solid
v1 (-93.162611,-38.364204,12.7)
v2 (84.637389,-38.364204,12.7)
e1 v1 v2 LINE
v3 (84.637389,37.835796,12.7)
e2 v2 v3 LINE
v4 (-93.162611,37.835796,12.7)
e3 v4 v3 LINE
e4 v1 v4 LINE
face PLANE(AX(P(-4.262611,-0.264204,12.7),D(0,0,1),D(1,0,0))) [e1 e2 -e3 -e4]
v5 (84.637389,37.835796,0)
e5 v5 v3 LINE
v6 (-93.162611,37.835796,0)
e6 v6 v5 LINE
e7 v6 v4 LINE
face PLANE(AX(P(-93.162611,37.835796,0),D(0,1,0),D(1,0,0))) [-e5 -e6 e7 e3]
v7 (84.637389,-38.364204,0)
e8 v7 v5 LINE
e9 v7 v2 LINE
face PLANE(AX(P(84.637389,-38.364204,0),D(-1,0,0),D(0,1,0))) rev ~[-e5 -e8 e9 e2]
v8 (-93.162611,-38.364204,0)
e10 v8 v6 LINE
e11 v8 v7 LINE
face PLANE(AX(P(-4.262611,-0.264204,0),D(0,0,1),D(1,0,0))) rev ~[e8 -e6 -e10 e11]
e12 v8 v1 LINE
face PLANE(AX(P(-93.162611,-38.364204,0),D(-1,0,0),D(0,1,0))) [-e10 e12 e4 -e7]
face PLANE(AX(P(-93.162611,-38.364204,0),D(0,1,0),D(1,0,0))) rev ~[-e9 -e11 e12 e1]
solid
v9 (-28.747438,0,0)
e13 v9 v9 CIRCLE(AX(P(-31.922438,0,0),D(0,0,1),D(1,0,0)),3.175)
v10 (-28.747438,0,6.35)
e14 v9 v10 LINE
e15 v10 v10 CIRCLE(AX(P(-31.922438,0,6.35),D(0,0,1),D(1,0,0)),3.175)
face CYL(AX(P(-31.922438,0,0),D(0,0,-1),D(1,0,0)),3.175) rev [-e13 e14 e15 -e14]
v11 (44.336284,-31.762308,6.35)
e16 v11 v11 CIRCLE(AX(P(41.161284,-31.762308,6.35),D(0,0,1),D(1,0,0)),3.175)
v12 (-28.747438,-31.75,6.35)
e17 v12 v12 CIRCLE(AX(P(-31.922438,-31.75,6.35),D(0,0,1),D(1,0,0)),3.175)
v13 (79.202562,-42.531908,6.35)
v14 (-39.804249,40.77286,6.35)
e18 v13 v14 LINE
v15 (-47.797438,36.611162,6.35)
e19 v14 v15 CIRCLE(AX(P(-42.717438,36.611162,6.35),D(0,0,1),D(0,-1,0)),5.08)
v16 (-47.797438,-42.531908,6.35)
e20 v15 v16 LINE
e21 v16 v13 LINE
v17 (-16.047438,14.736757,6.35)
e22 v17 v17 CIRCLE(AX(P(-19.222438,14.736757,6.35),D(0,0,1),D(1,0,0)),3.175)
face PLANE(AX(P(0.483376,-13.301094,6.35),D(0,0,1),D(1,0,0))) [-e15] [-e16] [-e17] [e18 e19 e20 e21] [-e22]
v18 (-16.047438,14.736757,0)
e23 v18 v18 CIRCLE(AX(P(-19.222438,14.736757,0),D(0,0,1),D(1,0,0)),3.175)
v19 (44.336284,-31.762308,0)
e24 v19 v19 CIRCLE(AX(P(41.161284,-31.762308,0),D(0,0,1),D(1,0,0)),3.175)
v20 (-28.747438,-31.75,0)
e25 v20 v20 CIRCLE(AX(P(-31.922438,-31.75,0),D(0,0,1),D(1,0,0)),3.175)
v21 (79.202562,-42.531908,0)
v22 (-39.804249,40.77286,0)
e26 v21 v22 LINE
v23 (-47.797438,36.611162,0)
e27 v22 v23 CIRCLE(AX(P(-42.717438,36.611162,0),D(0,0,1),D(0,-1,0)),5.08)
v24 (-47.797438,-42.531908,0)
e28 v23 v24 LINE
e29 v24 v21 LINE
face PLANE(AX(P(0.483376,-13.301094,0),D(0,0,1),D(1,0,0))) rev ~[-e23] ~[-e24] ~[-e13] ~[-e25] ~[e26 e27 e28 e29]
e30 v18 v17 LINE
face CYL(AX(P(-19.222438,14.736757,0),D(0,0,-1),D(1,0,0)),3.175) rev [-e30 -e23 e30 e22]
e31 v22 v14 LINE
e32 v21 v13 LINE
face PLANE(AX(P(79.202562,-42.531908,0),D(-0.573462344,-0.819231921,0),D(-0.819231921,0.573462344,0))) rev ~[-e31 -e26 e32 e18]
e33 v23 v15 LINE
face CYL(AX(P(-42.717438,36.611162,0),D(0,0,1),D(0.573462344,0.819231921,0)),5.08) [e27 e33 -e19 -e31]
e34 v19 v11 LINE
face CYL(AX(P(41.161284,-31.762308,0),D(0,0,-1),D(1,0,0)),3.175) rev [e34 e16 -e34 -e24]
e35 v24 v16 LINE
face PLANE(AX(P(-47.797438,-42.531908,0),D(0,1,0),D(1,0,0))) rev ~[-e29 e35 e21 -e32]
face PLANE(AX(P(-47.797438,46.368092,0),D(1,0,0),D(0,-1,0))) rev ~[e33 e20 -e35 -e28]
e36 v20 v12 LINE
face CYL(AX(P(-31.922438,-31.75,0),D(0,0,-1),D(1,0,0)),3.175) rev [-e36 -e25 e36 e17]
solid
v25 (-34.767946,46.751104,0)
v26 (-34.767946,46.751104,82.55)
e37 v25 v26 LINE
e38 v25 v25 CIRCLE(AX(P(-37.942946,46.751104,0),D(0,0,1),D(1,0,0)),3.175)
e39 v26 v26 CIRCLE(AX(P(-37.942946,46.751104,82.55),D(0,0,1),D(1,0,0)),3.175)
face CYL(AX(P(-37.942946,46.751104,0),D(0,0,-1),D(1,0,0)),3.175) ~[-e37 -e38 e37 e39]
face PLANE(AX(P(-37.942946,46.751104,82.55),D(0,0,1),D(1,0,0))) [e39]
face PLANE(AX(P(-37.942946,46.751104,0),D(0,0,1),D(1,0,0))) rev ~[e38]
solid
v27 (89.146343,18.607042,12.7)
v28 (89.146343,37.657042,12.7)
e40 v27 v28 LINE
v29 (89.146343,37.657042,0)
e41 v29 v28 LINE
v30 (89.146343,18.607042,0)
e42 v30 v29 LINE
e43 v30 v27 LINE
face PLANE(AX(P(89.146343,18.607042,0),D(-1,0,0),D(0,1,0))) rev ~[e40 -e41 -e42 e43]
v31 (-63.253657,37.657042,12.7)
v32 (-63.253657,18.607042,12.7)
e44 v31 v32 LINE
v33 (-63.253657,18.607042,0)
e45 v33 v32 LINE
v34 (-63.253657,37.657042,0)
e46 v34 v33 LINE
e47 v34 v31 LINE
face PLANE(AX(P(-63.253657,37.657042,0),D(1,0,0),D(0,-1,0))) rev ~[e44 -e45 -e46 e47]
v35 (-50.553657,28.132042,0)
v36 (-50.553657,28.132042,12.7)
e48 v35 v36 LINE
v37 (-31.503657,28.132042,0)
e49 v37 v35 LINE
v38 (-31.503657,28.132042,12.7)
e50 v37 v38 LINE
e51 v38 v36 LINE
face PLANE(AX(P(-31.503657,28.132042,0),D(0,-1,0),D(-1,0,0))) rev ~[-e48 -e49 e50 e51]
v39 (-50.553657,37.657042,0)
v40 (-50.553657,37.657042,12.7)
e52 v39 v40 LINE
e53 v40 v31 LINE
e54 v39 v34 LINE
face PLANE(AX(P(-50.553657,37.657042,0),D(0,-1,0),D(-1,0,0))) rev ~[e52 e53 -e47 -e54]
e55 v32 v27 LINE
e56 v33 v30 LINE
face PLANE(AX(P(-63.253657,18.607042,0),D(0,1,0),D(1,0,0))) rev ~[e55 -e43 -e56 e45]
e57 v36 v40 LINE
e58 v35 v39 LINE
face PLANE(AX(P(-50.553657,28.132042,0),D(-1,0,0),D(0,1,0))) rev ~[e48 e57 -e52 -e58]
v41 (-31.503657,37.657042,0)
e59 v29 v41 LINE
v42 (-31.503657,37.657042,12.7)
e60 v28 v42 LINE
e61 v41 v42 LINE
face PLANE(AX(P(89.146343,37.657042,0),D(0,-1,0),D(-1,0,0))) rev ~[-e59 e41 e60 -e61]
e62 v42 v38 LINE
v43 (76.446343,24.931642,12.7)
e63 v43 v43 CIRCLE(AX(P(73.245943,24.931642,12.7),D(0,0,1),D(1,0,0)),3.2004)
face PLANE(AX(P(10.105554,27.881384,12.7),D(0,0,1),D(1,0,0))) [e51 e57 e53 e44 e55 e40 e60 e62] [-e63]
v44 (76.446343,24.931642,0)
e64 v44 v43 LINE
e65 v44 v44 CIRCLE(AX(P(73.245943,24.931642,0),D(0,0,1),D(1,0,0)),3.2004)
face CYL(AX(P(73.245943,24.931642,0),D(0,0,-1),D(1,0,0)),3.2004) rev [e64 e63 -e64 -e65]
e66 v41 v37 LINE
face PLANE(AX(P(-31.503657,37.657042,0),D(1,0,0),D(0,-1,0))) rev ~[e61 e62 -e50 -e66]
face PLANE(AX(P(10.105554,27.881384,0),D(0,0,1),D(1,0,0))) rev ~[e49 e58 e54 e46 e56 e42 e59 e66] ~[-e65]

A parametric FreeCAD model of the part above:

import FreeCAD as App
import Part
import Sketcher

V = App.Vector
Q = App.Units.Quantity


def edges_at(feature, points):
    """Names of the edges that pass closest to the given points."""
    edges = feature.Shape.Edges
    near = lambda p: min(range(len(edges)), key=lambda i: edges[i].distToShape(Part.Vertex(*p))[0])
    return sorted({f"Edge{near(p) + 1}" for p in points})

doc = App.newDocument("Part")
params = doc.addObject("Spreadsheet::Sheet", "Params")
for row, (alias, value) in enumerate([
    ("sketch1_diameter", "0.25 in"),
    ("pad1_length", "3.25 in"),
    ("sketch2_width", "7 in"),
    ("sketch2_height", "3 in"),
    ("pad2_length", "0.5 in"),
    ("sketch3_diameter", "0.25 in"),
    ("sketch3_width", "5 in"),
    ("sketch3_height", "3.5 in"),
    ("pad3_length", "0.25 in"),
    ("fillet_radius", "0.2 in"),
    ("sketch4_width", "6 in"),
    ("sketch4_diameter", "0.252 in"),
    ("sketch4_width2", "0.5 in"),
    ("sketch4_width3", "4.75 in"),
    ("sketch4_height", "0.375 in"),
    ("pad4_length", "0.5 in"),
], start=1):
    params.set(f"A{row}", alias)
    params.set(f"B{row}", "=" + value)
    params.setAlias(f"B{row}", alias)

body = doc.addObject("PartDesign::Body", "Body")

# Sketch on XY plane
sketch1 = body.newObject("Sketcher::SketchObject", "Sketch")
sketch1.AttachmentSupport = (doc.getObject("XY_Plane"), [""])
sketch1.MapMode = "FlatFace"
sketch1.addGeometry(Part.Circle(V(-37.942946, 46.751104, 0), V(0, 0, 1), 3.175), False)
sketch1.addConstraint([
    Sketcher.Constraint("Diameter", 0, Q("0.25 in")),
    Sketcher.Constraint("DistanceX", 0, 3, -1, 1, Q("37.942946 mm")),
    Sketcher.Constraint("DistanceY", -1, 1, 0, 3, Q("46.751104 mm")),
])
sketch1.setExpression("Constraints[0]", "Params.sketch1_diameter")
pad1 = body.newObject("PartDesign::Pad", "Pad")
pad1.Profile = sketch1
pad1.setExpression("Length", "Params.pad1_length")
body2 = doc.addObject("PartDesign::Body", "Body001")

# Sketch on XY plane
sketch2 = body2.newObject("Sketcher::SketchObject", "Sketch001")
sketch2.AttachmentSupport = (doc.getObject("XY_Plane001"), [""])
sketch2.MapMode = "FlatFace"
sketch2.addGeometry([
    Part.LineSegment(V(-93.162611, 37.835796, 0), V(-93.162611, -38.364204, 0)),
    Part.LineSegment(V(-93.162611, -38.364204, 0), V(84.637389, -38.364204, 0)),
    Part.LineSegment(V(84.637389, -38.364204, 0), V(84.637389, 37.835796, 0)),
    Part.LineSegment(V(84.637389, 37.835796, 0), V(-93.162611, 37.835796, 0)),
], False)
sketch2.addConstraint([
    Sketcher.Constraint("Coincident", 0, 2, 1, 1),
    Sketcher.Constraint("Coincident", 1, 2, 2, 1),
    Sketcher.Constraint("Coincident", 2, 2, 3, 1),
    Sketcher.Constraint("Coincident", 3, 2, 0, 1),
    Sketcher.Constraint("Vertical", 0),
    Sketcher.Constraint("Horizontal", 1),
    Sketcher.Constraint("Vertical", 2),
    Sketcher.Constraint("Horizontal", 3),
    Sketcher.Constraint("DistanceX", 1, 1, 1, 2, Q("7 in")),
    Sketcher.Constraint("DistanceY", 0, 2, 0, 1, Q("3 in")),
    Sketcher.Constraint("DistanceX", 0, 2, -1, 1, Q("93.162611 mm")),
    Sketcher.Constraint("DistanceY", 0, 2, -1, 1, Q("38.364204 mm")),
])
sketch2.setExpression("Constraints[8]", "Params.sketch2_width")
sketch2.setExpression("Constraints[9]", "Params.sketch2_height")
pad2 = body2.newObject("PartDesign::Pad", "Pad001")
pad2.Profile = sketch2
pad2.setExpression("Length", "Params.pad2_length")
body3 = doc.addObject("PartDesign::Body", "Body002")

# Sketch on XY plane
sketch3 = body3.newObject("Sketcher::SketchObject", "Sketch002")
sketch3.AttachmentSupport = (doc.getObject("XY_Plane002"), [""])
sketch3.MapMode = "FlatFace"
sketch3.addGeometry([
    Part.LineSegment(V(79.202562, -42.531908, 0), V(-47.797438, 46.368092, 0)),  # 0
    Part.LineSegment(V(-47.797438, 46.368092, 0), V(-47.797438, -42.531908, 0)),  # 1
    Part.LineSegment(V(-47.797438, -42.531908, 0), V(79.202562, -42.531908, 0)),  # 2
    Part.Circle(V(-31.922438, -31.75, 0), V(0, 0, 1), 3.175),  # 3
    Part.Circle(V(41.161284, -31.762308, 0), V(0, 0, 1), 3.175),  # 4
    Part.Circle(V(-31.922438, 0, 0), V(0, 0, 1), 3.175),  # 5
    Part.Circle(V(-19.222438, 14.736757, 0), V(0, 0, 1), 3.175),  # 6
], False)
sketch3.addConstraint([
    Sketcher.Constraint("Coincident", 0, 2, 1, 1),
    Sketcher.Constraint("Coincident", 1, 2, 2, 1),
    Sketcher.Constraint("Coincident", 2, 2, 0, 1),
    Sketcher.Constraint("Vertical", 1),
    Sketcher.Constraint("Horizontal", 2),
    Sketcher.Constraint("Equal", 3, 4),
    Sketcher.Constraint("Equal", 4, 5),
    Sketcher.Constraint("Equal", 5, 6),
    Sketcher.Constraint("PointOnObject", 5, 3, -1),
    Sketcher.Constraint("Vertical", 3, 3, 5, 3),
    Sketcher.Constraint("Diameter", 3, Q("0.25 in")),
    Sketcher.Constraint("DistanceX", 2, 1, 2, 2, Q("5 in")),
    Sketcher.Constraint("DistanceY", 1, 2, 1, 1, Q("3.5 in")),
    Sketcher.Constraint("DistanceX", 5, 3, 6, 3, Q("0.5 in")),
    Sketcher.Constraint("DistanceY", 3, 3, -1, 1, Q("1.25 in")),
    Sketcher.Constraint("DistanceX", 0, 2, 6, 3, Q("1.125 in")),
    Sketcher.Constraint("DistanceY", 4, 3, 0, 2, Q("3.076 in")),
    Sketcher.Constraint("DistanceY", 4, 3, -1, 1, Q("31.762308 mm")),
    Sketcher.Constraint("DistanceX", 6, 3, -1, 1, Q("19.222438 mm")),
    Sketcher.Constraint("DistanceX", 3, 3, 4, 3, Q("73.083722 mm")),
    Sketcher.Constraint("DistanceY", -1, 1, 6, 3, Q("14.736757 mm")),
])
sketch3.setExpression("Constraints[10]", "Params.sketch3_diameter")
sketch3.setExpression("Constraints[11]", "Params.sketch3_width")
sketch3.setExpression("Constraints[12]", "Params.sketch3_height")
pad3 = body3.newObject("PartDesign::Pad", "Pad002")
pad3.Profile = sketch3
pad3.setExpression("Length", "Params.pad3_length")
doc.recompute()

fillet = body3.newObject("PartDesign::Fillet", "Fillet")
fillet.Base = (pad3, edges_at(pad3, [(-47.797, 46.368, 3.175)]))
fillet.setExpression("Radius", "Params.fillet_radius")
body4 = doc.addObject("PartDesign::Body", "Body003")

# Sketch on XY plane
sketch4 = body4.newObject("Sketcher::SketchObject", "Sketch003")
sketch4.AttachmentSupport = (doc.getObject("XY_Plane003"), [""])
sketch4.MapMode = "FlatFace"
sketch4.addGeometry([
    Part.LineSegment(V(-50.553657, 37.657042, 0), V(-63.253657, 37.657042, 0)),  # 0
    Part.LineSegment(V(-63.253657, 37.657042, 0), V(-63.253657, 18.607042, 0)),  # 1
    Part.LineSegment(V(-63.253657, 18.607042, 0), V(89.146343, 18.607042, 0)),  # 2
    Part.LineSegment(V(89.146343, 18.607042, 0), V(89.146343, 37.657042, 0)),  # 3
    Part.LineSegment(V(89.146343, 37.657042, 0), V(-31.503657, 37.657042, 0)),  # 4
    Part.LineSegment(V(-31.503657, 37.657042, 0), V(-31.503657, 28.132042, 0)),  # 5
    Part.LineSegment(V(-31.503657, 28.132042, 0), V(-50.553657, 28.132042, 0)),  # 6
    Part.LineSegment(V(-50.553657, 28.132042, 0), V(-50.553657, 37.657042, 0)),  # 7
    Part.Circle(V(73.245943, 24.931642, 0), V(0, 0, 1), 3.2004),  # 8
], False)
sketch4.addConstraint([
    Sketcher.Constraint("Coincident", 0, 2, 1, 1),
    Sketcher.Constraint("Coincident", 1, 2, 2, 1),
    Sketcher.Constraint("Coincident", 2, 2, 3, 1),
    Sketcher.Constraint("Coincident", 3, 2, 4, 1),
    Sketcher.Constraint("Coincident", 4, 2, 5, 1),
    Sketcher.Constraint("Coincident", 5, 2, 6, 1),
    Sketcher.Constraint("Coincident", 6, 2, 7, 1),
    Sketcher.Constraint("Coincident", 7, 2, 0, 1),
    Sketcher.Constraint("Horizontal", 0),
    Sketcher.Constraint("Vertical", 1),
    Sketcher.Constraint("Horizontal", 2),
    Sketcher.Constraint("Vertical", 3),
    Sketcher.Constraint("Horizontal", 4),
    Sketcher.Constraint("Vertical", 5),
    Sketcher.Constraint("Horizontal", 6),
    Sketcher.Constraint("Vertical", 7),
    Sketcher.Constraint("Horizontal", 0, 2, 3, 2),
    Sketcher.Constraint("Equal", 6, 1),
    Sketcher.Constraint("DistanceX", 2, 1, 2, 2, Q("6 in")),
    Sketcher.Constraint("Diameter", 8, Q("0.252 in")),
    Sketcher.Constraint("DistanceX", 0, 2, 0, 1, Q("0.5 in")),
    Sketcher.Constraint("DistanceX", 4, 2, 4, 1, Q("4.75 in")),
    Sketcher.Constraint("DistanceY", 5, 2, 5, 1, Q("0.375 in")),
    Sketcher.Constraint("DistanceX", 0, 2, 8, 3, Q("5.374 in")),
    Sketcher.Constraint("DistanceY", 8, 3, 0, 2, Q("0.501 in")),
    Sketcher.Constraint("DistanceY", -1, 1, 8, 3, Q("24.931642 mm")),
    Sketcher.Constraint("DistanceX", -1, 1, 8, 3, Q("73.245943 mm")),
])
sketch4.setExpression("Constraints[18]", "Params.sketch4_width")
sketch4.setExpression("Constraints[19]", "Params.sketch4_diameter")
sketch4.setExpression("Constraints[20]", "Params.sketch4_width2")
sketch4.setExpression("Constraints[21]", "Params.sketch4_width3")
sketch4.setExpression("Constraints[22]", "Params.sketch4_height")
pad4 = body4.newObject("PartDesign::Pad", "Pad003")
pad4.Profile = sketch4
pad4.setExpression("Length", "Params.pad4_length")

doc.recompute()
